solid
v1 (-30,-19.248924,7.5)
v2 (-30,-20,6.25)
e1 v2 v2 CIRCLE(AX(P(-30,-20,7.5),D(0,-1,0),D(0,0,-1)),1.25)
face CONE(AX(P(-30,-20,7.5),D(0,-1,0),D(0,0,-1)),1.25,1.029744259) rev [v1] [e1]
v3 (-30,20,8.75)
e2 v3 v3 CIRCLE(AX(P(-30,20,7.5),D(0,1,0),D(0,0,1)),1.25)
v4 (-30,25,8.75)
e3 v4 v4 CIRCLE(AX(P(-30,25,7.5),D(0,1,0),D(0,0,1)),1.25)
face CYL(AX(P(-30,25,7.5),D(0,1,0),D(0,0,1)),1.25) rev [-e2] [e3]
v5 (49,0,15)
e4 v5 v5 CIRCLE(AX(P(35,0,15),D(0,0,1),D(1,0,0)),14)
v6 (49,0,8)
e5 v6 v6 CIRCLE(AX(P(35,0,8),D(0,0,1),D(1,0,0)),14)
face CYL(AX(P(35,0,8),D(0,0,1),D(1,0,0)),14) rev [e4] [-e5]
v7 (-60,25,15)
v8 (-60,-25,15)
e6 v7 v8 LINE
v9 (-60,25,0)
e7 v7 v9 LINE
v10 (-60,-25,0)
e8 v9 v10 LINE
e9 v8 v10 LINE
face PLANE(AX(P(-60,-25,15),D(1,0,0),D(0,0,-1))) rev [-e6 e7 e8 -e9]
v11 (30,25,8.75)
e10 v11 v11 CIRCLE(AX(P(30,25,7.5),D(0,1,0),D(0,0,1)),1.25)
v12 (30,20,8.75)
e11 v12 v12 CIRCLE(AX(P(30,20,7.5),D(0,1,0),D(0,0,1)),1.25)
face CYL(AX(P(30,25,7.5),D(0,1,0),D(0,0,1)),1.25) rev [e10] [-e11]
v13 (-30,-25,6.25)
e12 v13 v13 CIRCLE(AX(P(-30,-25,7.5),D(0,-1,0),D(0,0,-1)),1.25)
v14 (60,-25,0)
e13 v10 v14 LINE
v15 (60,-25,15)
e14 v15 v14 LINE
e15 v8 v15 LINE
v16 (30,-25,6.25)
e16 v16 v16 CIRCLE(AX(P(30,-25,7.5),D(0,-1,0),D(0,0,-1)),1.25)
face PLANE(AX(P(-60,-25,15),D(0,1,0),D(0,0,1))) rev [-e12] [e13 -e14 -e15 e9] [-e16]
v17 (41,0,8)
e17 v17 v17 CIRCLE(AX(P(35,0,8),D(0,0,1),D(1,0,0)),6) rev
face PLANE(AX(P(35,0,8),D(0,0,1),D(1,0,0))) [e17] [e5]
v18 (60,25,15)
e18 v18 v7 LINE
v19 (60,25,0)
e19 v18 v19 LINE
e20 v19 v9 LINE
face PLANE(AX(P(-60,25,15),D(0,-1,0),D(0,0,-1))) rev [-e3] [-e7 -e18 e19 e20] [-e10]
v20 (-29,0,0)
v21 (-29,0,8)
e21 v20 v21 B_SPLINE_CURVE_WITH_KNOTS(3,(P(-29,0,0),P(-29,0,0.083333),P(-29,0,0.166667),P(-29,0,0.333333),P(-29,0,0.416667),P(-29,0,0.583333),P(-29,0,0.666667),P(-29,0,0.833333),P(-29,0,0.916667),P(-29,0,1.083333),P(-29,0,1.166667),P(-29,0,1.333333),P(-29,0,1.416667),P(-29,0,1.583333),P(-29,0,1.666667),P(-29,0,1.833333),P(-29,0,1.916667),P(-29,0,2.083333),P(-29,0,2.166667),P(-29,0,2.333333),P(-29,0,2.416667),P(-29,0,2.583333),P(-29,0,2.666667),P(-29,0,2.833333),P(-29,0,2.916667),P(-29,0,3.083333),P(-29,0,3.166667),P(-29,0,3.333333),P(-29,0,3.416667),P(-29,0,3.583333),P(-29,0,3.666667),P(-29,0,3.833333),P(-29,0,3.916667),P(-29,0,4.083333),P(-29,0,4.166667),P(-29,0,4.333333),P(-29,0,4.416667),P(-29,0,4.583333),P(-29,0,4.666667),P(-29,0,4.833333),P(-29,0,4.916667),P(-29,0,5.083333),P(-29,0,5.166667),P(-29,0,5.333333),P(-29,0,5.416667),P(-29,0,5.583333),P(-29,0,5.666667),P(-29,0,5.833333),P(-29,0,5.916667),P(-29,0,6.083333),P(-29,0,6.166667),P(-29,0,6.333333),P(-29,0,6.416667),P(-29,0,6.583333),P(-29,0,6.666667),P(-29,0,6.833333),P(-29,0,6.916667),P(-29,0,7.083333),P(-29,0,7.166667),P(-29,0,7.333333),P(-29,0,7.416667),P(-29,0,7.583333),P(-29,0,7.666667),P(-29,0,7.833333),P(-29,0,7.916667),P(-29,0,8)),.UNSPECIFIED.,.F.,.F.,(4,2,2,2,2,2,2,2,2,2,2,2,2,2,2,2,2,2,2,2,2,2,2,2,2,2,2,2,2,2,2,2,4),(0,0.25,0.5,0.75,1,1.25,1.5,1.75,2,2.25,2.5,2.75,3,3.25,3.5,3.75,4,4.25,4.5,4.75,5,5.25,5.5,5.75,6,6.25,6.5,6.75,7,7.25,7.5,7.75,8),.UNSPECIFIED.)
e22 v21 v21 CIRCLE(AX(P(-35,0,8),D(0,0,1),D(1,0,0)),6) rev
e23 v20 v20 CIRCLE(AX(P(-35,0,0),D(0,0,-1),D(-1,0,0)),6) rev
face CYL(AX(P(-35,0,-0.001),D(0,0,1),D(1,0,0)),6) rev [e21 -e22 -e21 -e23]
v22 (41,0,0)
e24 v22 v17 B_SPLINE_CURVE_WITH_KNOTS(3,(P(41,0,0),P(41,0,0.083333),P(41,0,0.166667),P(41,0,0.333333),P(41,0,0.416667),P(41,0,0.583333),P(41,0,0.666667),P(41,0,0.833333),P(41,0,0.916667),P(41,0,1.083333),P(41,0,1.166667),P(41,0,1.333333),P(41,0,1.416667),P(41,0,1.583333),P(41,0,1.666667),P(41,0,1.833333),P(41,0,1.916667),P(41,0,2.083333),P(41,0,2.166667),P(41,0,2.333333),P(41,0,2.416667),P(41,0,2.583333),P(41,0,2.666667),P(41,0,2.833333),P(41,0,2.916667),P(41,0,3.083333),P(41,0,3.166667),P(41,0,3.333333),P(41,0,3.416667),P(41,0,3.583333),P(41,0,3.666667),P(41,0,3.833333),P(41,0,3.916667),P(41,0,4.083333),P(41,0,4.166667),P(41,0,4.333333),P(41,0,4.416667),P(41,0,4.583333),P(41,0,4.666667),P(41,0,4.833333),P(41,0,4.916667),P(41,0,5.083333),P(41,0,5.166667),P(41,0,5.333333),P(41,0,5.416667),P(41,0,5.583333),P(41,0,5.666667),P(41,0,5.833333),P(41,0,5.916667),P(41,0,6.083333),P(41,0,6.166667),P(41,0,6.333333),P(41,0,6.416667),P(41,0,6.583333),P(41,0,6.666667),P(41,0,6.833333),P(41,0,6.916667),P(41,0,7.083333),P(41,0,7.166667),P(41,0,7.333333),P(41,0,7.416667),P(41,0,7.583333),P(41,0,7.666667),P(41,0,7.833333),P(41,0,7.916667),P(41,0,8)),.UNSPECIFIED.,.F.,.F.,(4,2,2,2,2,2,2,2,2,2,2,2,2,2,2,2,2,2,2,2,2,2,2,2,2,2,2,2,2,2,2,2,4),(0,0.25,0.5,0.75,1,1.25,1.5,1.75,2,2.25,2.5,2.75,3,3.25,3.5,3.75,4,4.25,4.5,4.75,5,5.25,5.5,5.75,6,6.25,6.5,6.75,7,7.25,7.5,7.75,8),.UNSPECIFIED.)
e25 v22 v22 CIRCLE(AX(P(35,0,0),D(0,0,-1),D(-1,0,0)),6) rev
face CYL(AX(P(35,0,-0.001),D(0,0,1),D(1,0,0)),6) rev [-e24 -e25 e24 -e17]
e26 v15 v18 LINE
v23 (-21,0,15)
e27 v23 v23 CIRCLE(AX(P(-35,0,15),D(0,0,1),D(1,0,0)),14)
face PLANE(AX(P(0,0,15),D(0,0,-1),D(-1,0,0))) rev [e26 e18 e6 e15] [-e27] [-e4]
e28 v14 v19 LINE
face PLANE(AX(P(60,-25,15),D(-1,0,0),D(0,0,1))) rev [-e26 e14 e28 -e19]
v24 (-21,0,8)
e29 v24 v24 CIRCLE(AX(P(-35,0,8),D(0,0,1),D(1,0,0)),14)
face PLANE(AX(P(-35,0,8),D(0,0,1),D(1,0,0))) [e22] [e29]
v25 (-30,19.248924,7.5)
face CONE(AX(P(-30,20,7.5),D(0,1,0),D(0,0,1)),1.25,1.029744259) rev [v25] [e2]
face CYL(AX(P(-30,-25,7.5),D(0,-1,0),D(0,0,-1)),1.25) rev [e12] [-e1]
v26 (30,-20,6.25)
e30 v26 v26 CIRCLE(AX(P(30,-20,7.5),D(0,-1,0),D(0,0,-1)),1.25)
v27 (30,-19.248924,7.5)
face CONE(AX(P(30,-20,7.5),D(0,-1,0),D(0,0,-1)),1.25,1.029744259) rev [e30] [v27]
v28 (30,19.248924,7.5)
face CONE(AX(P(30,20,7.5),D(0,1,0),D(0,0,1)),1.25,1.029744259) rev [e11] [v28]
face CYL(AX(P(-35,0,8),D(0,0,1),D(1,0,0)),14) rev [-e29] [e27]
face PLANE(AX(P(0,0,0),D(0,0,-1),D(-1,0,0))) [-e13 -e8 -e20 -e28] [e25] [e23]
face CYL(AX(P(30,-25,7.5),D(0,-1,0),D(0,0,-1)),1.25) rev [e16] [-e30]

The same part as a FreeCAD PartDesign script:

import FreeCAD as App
import Part
import Sketcher
from FreeCAD import Vector
Q = App.Units.Quantity

doc = App.newDocument("Part")
body = doc.addObject("PartDesign::Body", "Body")

# Sketch on XY plane
sketch1 = body.newObject("Sketcher::SketchObject", "Sketch")
sketch1.AttachmentSupport = (doc.getObject("XY_Plane"), [""])
sketch1.MapMode = "FlatFace"
sketch1.addGeometry([
    Part.LineSegment(Vector(-60, 25, 0), Vector(-60, -25, 0)),
    Part.LineSegment(Vector(-60, -25, 0), Vector(60, -25, 0)),
    Part.LineSegment(Vector(60, -25, 0), Vector(60, 25, 0)),
    Part.LineSegment(Vector(60, 25, 0), Vector(-60, 25, 0)),
], False)
sketch1.addConstraint([
    Sketcher.Constraint("Coincident", 0, 2, 1, 1),
    Sketcher.Constraint("Coincident", 1, 2, 2, 1),
    Sketcher.Constraint("Coincident", 2, 2, 3, 1),
    Sketcher.Constraint("Coincident", 3, 2, 0, 1),
    Sketcher.Constraint("Vertical", 0),
    Sketcher.Constraint("Horizontal", 1),
    Sketcher.Constraint("Vertical", 2),
    Sketcher.Constraint("Horizontal", 3),
    Sketcher.Constraint("Symmetric", 0, 2, 2, 2, -1, 1),
    Sketcher.Constraint("DistanceX", 1, 1, 1, 2, Q("120 mm")),
    Sketcher.Constraint("DistanceY", 0, 2, 0, 1, Q("50 mm")),
])
pad1 = body.newObject("PartDesign::Pad", "Pad")
pad1.Profile = sketch1
pad1.Length = 15

# Sketch on XY plane
sketch2 = body.newObject("Sketcher::SketchObject", "Sketch001")
sketch2.AttachmentSupport = (doc.getObject("XY_Plane"), [""])
sketch2.MapMode = "FlatFace"
sketch2.AttachmentOffset = App.Placement(Vector(0, 0, 15), App.Rotation())
sketch2.addGeometry(Part.Circle(Vector(-35, 0, 0), Vector(0, 0, 1), 6), False)
sketch2.addConstraint([
    Sketcher.Constraint("PointOnObject", 0, 3, -1),
    Sketcher.Constraint("Diameter", 0, Q("12 mm")),
    Sketcher.Constraint("DistanceX", 0, 3, -1, 1, Q("35 mm")),
])
pocket1 = body.newObject("PartDesign::Pocket", "Pocket")
pocket1.Profile = sketch2
pocket1.Type = "UpToFirst"

# Sketch on XY plane
sketch3 = body.newObject("Sketcher::SketchObject", "Sketch002")
sketch3.AttachmentSupport = (doc.getObject("XY_Plane"), [""])
sketch3.MapMode = "FlatFace"
sketch3.AttachmentOffset = App.Placement(Vector(0, 0, 15), App.Rotation())
sketch3.addGeometry(Part.Circle(Vector(35, 0, 0), Vector(0, 0, 1), 6), False)
sketch3.addConstraint([
    Sketcher.Constraint("PointOnObject", 0, 3, -1),
    Sketcher.Constraint("Diameter", 0, Q("12 mm")),
    Sketcher.Constraint("DistanceX", -1, 1, 0, 3, Q("35 mm")),
])
pocket2 = body.newObject("PartDesign::Pocket", "Pocket001")
pocket2.Profile = sketch3
pocket2.Type = "UpToFirst"

# Sketch on XZ plane
sketch4 = body.newObject("Sketcher::SketchObject", "Sketch003")
sketch4.AttachmentSupport = (doc.getObject("XZ_Plane"), [""])
sketch4.MapMode = "FlatFace"
sketch4.AttachmentOffset = App.Placement(Vector(0, 0, -25), App.Rotation())
sketch4.addGeometry([
    Part.Circle(Vector(30, 7.5, 0), Vector(0, 0, 1), 1.25),
    Part.Circle(Vector(-30, 7.5, 0), Vector(0, 0, 1), 1.25),
], False)
sketch4.addConstraint([
    Sketcher.Constraint("Equal", 0, 1),
    Sketcher.Constraint("Symmetric", 0, 3, 1, 3, -2),
    Sketcher.Constraint("Diameter", 0, Q("2.5 mm")),
    Sketcher.Constraint("DistanceX", -1, 1, 0, 3, Q("30 mm")),
    Sketcher.Constraint("DistanceY", -1, 1, 0, 3, Q("7.5 mm")),
])
doc.recompute()
hole = body.newObject("PartDesign::Hole", "Hole")
hole.Profile = sketch4
hole.ThreadType = "None"
hole.Diameter = 2.5
hole.DepthType = "Dimension"
hole.Depth = 5
hole.DrillPoint = "Angled"
hole.DrillPointAngle = 118
hole.Reversed = True

# Sketch on XZ plane
sketch5 = body.newObject("Sketcher::SketchObject", "Sketch004")
sketch5.AttachmentSupport = (doc.getObject("XZ_Plane"), [""])
sketch5.MapMode = "FlatFace"
sketch5.AttachmentOffset = App.Placement(Vector(0, 0, 25), App.Rotation())
sketch5.addGeometry([
    Part.Circle(Vector(30, 7.5, 0), Vector(0, 0, 1), 1.25),
    Part.Circle(Vector(-30, 7.5, 0), Vector(0, 0, 1), 1.25),
], False)
sketch5.addConstraint([
    Sketcher.Constraint("Equal", 0, 1),
    Sketcher.Constraint("Symmetric", 0, 3, 1, 3, -2),
    Sketcher.Constraint("Diameter", 0, Q("2.5 mm")),
    Sketcher.Constraint("DistanceX", -1, 1, 0, 3, Q("30 mm")),
    Sketcher.Constraint("DistanceY", -1, 1, 0, 3, Q("7.5 mm")),
])
doc.recompute()
hole2 = body.newObject("PartDesign::Hole", "Hole001")
hole2.Profile = sketch5
hole2.ThreadType = "None"
hole2.Diameter = 2.5
hole2.DepthType = "Dimension"
hole2.Depth = 5
hole2.DrillPoint = "Angled"
hole2.DrillPointAngle = 118

# Sketch on XY plane
sketch6 = body.newObject("Sketcher::SketchObject", "Sketch005")
sketch6.AttachmentSupport = (doc.getObject("XY_Plane"), [""])
sketch6.MapMode = "FlatFace"
sketch6.AttachmentOffset = App.Placement(Vector(0, 0, 15), App.Rotation())
sketch6.addGeometry([
    Part.Circle(Vector(-35, 0, 0), Vector(0, 0, 1), 14),
    Part.Circle(Vector(35, 0, 0), Vector(0, 0, 1), 14),
], False)
sketch6.addConstraint([
    Sketcher.Constraint("Equal", 0, 1),
    Sketcher.Constraint("Symmetric", 0, 3, 1, 3, -1, 1),
    Sketcher.Constraint("PointOnObject", 0, 3, -1),
    Sketcher.Constraint("Diameter", 0, Q("28 mm")),
    Sketcher.Constraint("DistanceX", 0, 3, -1, 1, Q("35 mm")),
])
pocket3 = body.newObject("PartDesign::Pocket", "Pocket002")
pocket3.Profile = sketch6
pocket3.Length = 7

doc.recompute()
